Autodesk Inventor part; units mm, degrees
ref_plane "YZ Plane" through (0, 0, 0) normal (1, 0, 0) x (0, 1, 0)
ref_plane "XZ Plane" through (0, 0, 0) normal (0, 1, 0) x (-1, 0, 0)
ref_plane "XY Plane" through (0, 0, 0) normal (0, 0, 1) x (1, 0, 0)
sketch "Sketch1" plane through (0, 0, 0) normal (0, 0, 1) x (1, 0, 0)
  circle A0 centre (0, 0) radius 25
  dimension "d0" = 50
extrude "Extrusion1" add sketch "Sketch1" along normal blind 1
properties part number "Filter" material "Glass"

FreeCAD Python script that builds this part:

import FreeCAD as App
import Part
import Sketcher

doc = App.newDocument("Part")
body = doc.addObject("PartDesign::Body", "Body")

sketch1 = doc.addObject("Sketcher::SketchObject", "Sketch")
body.addObject(sketch1)
sketch1.AttachmentSupport = (doc.XY_Plane, [""])
sketch1.MapMode = "FlatFace"
sketch1.addGeometry(Part.Circle(App.Vector(0, 0, 0), App.Vector(0, 0, 1), 25), False)
sketch1.addConstraint([
    Sketcher.Constraint("Coincident", 0, 3, -1, 1),
    Sketcher.Constraint("Diameter", 0, 50.0),
])
pad1 = doc.addObject("PartDesign::Pad", "Pad")
body.addObject(pad1)
pad1.Profile = sketch1
pad1.Length = 1

doc.recompute()
